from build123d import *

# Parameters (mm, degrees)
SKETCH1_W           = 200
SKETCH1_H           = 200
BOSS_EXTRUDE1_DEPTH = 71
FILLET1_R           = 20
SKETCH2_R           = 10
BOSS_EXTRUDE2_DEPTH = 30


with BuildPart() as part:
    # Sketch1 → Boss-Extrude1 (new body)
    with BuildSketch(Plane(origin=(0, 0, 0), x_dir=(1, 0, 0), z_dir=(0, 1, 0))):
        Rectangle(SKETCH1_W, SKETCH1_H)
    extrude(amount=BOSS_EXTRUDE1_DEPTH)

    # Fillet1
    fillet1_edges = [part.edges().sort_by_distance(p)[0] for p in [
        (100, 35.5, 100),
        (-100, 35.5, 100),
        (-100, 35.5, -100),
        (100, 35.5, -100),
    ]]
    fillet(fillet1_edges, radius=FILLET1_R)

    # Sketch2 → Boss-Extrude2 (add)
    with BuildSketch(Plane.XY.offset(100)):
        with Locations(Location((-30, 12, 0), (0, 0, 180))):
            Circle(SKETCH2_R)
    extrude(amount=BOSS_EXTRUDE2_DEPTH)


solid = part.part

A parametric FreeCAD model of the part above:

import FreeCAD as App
import Part
import Sketcher
from FreeCAD import Vector


def edges_at(feature, points):
    """Names of the edges that pass closest to the given points."""
    edges = feature.Shape.Edges
    near = lambda p: min(range(len(edges)), key=lambda i: edges[i].distToShape(Part.Vertex(*p))[0])
    return sorted({f"Edge{near(p) + 1}" for p in points})


def add_polygon(sketch, points):
    """Adds a closed chain of lines whose ends are joined by coincident constraints."""
    first, n = sketch.GeometryCount, len(points)
    for a, b in zip(points, points[1:] + points[:1]):
        sketch.addGeometry(Part.LineSegment(App.Vector(*a, 0), App.Vector(*b, 0)), False)
    for i in range(n):
        sketch.addConstraint(Sketcher.Constraint("Coincident", first + i, 2, first + (i + 1) % n, 1))

doc = App.newDocument("Part")
params = doc.addObject("Spreadsheet::Sheet", "Params")
for row, (alias, value) in enumerate([
    ("sketch1_width", "200 mm"),
    ("pad1_length", "71 mm"),
    ("fillet_radius", "20 mm"),
    ("sketch2_diameter", "20 mm"),
    ("pad2_length", "30 mm"),
], start=1):
    params.set(f"A{row}", alias)
    params.set(f"B{row}", "=" + value)
    params.setAlias(f"B{row}", alias)

body = doc.addObject("PartDesign::Body", "Body")

# Sketch on XZ plane
sketch1 = body.newObject("Sketcher::SketchObject", "Sketch")
sketch1.AttachmentSupport = (doc.getObject("XZ_Plane"), [""])
sketch1.MapMode = "FlatFace"
add_polygon(sketch1, [(-100, -100), (-100, 100), (100, 100), (100, -100)])  # lines 0-3
sketch1.addConstraint([
    Sketcher.Constraint("Vertical", 0),
    Sketcher.Constraint("Horizontal", 1),
    Sketcher.Constraint("Vertical", 2),
    Sketcher.Constraint("Horizontal", 3),
    Sketcher.Constraint("Symmetric", 0, 2, 2, 2, -1, 1),
    Sketcher.Constraint("Equal", 3, 0),
    Sketcher.Constraint("DistanceX", 1, 1, 1, 2, 200.0),
])
sketch1.setExpression("Constraints[10]", "Params.sketch1_width")
pad1 = body.newObject("PartDesign::Pad", "Pad")
pad1.Profile = sketch1
pad1.setExpression("Length", "Params.pad1_length")
pad1.Reversed = True
doc.recompute()

fillet = body.newObject("PartDesign::Fillet", "Fillet")
fillet.Base = (pad1, edges_at(pad1, [
    (100, 35.5, 100),
    (-100, 35.5, 100),
    (-100, 35.5, -100),
    (100, 35.5, -100),
]))
fillet.setExpression("Radius", "Params.fillet_radius")

# Sketch on XY plane
sketch2 = body.newObject("Sketcher::SketchObject", "Sketch001")
sketch2.AttachmentSupport = (doc.getObject("XY_Plane"), [""])
sketch2.MapMode = "FlatFace"
sketch2.AttachmentOffset = App.Placement(Vector(0, 0, 100), App.Rotation())
sketch2.addGeometry(Part.Circle(Vector(-30, 12, 0), Vector(0, 0, 1), 10), False)
sketch2.addConstraint([
    Sketcher.Constraint("Diameter", 0, 20.0),
    Sketcher.Constraint("DistanceX", 0, 3, -1, 1, 30.0),
    Sketcher.Constraint("DistanceY", -1, 1, 0, 3, 12.0),
])
sketch2.setExpression("Constraints[0]", "Params.sketch2_diameter")
pad2 = body.newObject("PartDesign::Pad", "Pad001")
pad2.Profile = sketch2
pad2.setExpression("Length", "Params.pad2_length")

doc.recompute()
